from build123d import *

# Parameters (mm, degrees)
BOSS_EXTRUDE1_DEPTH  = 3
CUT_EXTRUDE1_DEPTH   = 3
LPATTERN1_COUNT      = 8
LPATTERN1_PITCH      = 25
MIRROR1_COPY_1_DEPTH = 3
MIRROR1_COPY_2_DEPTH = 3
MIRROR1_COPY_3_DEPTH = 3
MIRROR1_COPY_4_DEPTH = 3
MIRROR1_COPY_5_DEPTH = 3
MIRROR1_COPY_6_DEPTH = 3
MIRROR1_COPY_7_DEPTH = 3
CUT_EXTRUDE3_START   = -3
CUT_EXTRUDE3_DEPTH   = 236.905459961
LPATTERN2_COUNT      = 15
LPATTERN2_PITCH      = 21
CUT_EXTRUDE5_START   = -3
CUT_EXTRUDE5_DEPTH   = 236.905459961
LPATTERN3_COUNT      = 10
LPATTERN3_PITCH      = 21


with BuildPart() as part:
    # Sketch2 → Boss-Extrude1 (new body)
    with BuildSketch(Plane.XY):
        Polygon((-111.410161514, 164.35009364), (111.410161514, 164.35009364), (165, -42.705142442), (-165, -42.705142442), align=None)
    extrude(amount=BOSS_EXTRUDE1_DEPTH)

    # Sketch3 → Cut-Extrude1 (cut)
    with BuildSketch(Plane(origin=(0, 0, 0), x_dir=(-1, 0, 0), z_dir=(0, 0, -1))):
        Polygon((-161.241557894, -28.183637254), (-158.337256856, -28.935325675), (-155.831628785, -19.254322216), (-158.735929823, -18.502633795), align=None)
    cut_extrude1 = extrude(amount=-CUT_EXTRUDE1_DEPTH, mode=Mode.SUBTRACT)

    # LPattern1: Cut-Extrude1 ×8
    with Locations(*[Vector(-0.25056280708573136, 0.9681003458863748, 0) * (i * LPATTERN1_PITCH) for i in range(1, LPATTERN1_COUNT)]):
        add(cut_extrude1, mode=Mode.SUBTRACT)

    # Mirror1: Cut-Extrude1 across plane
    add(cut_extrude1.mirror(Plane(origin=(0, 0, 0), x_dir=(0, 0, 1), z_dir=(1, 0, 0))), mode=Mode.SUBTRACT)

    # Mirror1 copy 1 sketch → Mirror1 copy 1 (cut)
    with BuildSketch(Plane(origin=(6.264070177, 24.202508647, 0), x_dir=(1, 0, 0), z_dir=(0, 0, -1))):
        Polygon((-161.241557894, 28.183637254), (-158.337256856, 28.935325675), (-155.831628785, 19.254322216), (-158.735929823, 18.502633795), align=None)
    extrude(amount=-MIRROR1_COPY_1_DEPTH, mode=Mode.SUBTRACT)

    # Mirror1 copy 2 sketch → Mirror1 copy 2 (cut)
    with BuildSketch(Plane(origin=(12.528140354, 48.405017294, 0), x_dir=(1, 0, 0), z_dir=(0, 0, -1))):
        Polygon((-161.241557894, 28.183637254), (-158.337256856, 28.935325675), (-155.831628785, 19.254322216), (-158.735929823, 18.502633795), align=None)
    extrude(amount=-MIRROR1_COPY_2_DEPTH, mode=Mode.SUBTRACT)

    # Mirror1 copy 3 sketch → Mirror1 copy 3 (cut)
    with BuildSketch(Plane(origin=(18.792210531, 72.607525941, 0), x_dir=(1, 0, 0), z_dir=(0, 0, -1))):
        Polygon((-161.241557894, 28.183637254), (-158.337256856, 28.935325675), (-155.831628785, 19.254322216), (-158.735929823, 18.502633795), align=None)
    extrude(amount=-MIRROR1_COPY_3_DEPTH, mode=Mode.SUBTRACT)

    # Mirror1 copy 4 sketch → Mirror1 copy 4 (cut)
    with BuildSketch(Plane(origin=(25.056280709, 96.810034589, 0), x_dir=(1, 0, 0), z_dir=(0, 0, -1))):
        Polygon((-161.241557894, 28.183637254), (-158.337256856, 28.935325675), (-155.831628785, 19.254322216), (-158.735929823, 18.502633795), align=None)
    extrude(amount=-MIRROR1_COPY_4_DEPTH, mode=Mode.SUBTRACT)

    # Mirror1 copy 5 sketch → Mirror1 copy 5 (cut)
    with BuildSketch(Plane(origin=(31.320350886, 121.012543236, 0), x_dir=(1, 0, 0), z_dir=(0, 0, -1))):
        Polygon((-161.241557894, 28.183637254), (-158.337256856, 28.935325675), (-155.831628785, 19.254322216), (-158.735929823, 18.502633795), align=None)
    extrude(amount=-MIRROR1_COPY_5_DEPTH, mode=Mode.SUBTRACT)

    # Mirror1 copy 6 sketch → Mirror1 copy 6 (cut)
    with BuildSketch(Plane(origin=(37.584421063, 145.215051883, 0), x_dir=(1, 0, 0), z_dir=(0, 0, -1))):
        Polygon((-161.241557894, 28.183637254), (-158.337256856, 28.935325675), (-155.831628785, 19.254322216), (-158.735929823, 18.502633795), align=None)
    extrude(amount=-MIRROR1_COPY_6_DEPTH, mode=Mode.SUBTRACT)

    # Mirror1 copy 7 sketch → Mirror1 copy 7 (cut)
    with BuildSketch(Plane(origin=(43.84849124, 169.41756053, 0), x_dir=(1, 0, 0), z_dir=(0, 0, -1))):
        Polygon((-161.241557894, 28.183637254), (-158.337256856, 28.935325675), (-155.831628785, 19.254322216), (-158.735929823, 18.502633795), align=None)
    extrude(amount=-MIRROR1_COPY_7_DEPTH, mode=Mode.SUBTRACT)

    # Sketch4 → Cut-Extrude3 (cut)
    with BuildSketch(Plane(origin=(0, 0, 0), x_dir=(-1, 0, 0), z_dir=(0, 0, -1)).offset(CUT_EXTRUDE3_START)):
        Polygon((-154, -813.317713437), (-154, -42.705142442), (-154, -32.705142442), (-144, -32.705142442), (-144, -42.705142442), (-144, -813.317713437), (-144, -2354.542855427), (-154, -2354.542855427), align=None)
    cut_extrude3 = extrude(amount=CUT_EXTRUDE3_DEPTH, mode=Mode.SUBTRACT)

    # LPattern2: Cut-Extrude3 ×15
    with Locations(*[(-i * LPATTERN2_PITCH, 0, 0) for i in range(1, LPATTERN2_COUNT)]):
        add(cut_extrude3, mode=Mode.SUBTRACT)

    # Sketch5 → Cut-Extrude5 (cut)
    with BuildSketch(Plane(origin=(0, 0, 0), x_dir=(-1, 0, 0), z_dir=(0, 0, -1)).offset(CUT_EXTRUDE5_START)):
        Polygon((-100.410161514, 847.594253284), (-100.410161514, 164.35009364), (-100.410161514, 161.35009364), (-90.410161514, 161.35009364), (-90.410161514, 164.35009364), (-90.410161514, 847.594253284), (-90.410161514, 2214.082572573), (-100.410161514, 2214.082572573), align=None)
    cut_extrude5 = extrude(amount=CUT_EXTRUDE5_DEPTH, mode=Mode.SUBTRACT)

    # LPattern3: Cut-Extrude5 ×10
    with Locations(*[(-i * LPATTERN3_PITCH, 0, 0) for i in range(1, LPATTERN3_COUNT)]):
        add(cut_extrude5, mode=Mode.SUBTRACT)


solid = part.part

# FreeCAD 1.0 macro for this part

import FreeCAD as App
import Part
import Sketcher
from FreeCAD import Vector
Q = App.Units.Quantity

doc = App.newDocument("Part")
body = doc.addObject("PartDesign::Body", "Body")

# Sketch on XY plane
sketch1 = body.newObject("Sketcher::SketchObject", "Sketch")
sketch1.AttachmentSupport = (doc.getObject("XY_Plane"), [""])
sketch1.MapMode = "FlatFace"
sketch1.addGeometry(Part.LineSegment(Vector(111, 164, 0), Vector(-111, 164, 0)), False)
sketch1.addGeometry(Part.LineSegment(Vector(-111, 164, 0), Vector(-165, -43, 0)), False)
sketch1.addGeometry(Part.LineSegment(Vector(-165, -43, 0), Vector(165, -43, 0)), False)
sketch1.addGeometry(Part.LineSegment(Vector(165, -43, 0), Vector(111, 164, 0)), False)
sketch1.addConstraint(Sketcher.Constraint("Coincident", 0, 2, 1, 1))
sketch1.addConstraint(Sketcher.Constraint("Coincident", 1, 2, 2, 1))
sketch1.addConstraint(Sketcher.Constraint("Coincident", 2, 2, 3, 1))
sketch1.addConstraint(Sketcher.Constraint("Coincident", 3, 2, 0, 1))
sketch1.addConstraint(Sketcher.Constraint("Horizontal", 0))
sketch1.addConstraint(Sketcher.Constraint("Horizontal", 2))
sketch1.addConstraint(Sketcher.Constraint("Equal", 1, 3))
sketch1.addConstraint(Sketcher.Constraint("DistanceX", 2, 1, 2, 2, Q("330 mm")))
sketch1.addConstraint(Sketcher.Constraint("DistanceX", 1, 2, -1, 1, Q("165 mm")))
sketch1.addConstraint(Sketcher.Constraint("DistanceX", 0, 2, 0, 1, Q("222.820323 mm")))
sketch1.addConstraint(Sketcher.Constraint("Distance", 1, Q("213.877866 mm")))
sketch1.addConstraint(Sketcher.Constraint("DistanceY", -1, 1, 0, 2, Q("164.350094 mm")))
pad1 = body.newObject("PartDesign::Pad", "Pad")
pad1.Profile = sketch1
pad1.Length = 3

# Sketch on XY plane
sketch2 = body.newObject("Sketcher::SketchObject", "Sketch001")
sketch2.AttachmentSupport = (doc.getObject("XY_Plane"), [""])
sketch2.MapMode = "FlatFace"
sketch2.addGeometry(Part.LineSegment(Vector(161.2, -28.2, 0), Vector(158.3, -28.9, 0)), False)
sketch2.addGeometry(Part.LineSegment(Vector(158.3, -28.9, 0), Vector(155.8, -19.3, 0)), False)
sketch2.addGeometry(Part.LineSegment(Vector(155.8, -19.3, 0), Vector(158.7, -18.5, 0)), False)
sketch2.addGeometry(Part.LineSegment(Vector(158.7, -18.5, 0), Vector(161.2, -28.2, 0)), False)
sketch2.addConstraint(Sketcher.Constraint("Coincident", 0, 2, 1, 1))
sketch2.addConstraint(Sketcher.Constraint("Coincident", 1, 2, 2, 1))
sketch2.addConstraint(Sketcher.Constraint("Coincident", 2, 2, 3, 1))
sketch2.addConstraint(Sketcher.Constraint("Coincident", 3, 2, 0, 1))
sketch2.addConstraint(Sketcher.Constraint("Perpendicular", 0, 1))
sketch2.addConstraint(Sketcher.Constraint("Perpendicular", 1, 2))
sketch2.addConstraint(Sketcher.Constraint("Perpendicular", 2, 3))
sketch2.addConstraint(Sketcher.Constraint("Distance", 0, Q("3 mm")))
sketch2.addConstraint(Sketcher.Constraint("Distance", 1, Q("10 mm")))
sketch2.addConstraint(Sketcher.Constraint("DistanceX", 1, 2, 2, 2, Q("2.904301 mm")))
sketch2.addConstraint(Sketcher.Constraint("DistanceX", -1, 1, 1, 2, Q("155.831629 mm")))
sketch2.addConstraint(Sketcher.Constraint("DistanceY", 0, 2, -1, 1, Q("28.935326 mm")))
pocket1 = body.newObject("PartDesign::Pocket", "Pocket")
pocket1.Profile = sketch2
pocket1.Length = 3
pocket1.Reversed = True
doc.recompute()

datumline = body.newObject("PartDesign::Line", "DatumLine")
datumline.Placement = App.Placement(Vector(0, 0, 0), App.Rotation(Vector(0, 0, 1), Vector(-0.250562807, 0.968100346, 0)))
linearpattern = body.newObject("PartDesign::LinearPattern", "LinearPattern")
linearpattern.Originals = [pocket1]
linearpattern.Direction = (datumline, [""])
linearpattern.Mode = "offset"
linearpattern.Offset = 25
linearpattern.Occurrences = 8
body.Tip = linearpattern
doc.recompute()

mirrored = body.newObject("PartDesign::Mirrored", "Mirrored")
mirrored.Originals = [pocket1]
mirrored.MirrorPlane = (doc.getObject("YZ_Plane"), [""])
body.Tip = mirrored

# Sketch on XY plane
sketch3 = body.newObject("Sketcher::SketchObject", "Sketch002")
sketch3.AttachmentSupport = (doc.getObject("XY_Plane"), [""])
sketch3.MapMode = "FlatFace"
sketch3.addGeometry(Part.LineSegment(Vector(-152.1, -4.7, 0), Vector(-155, -4, 0)), False)
sketch3.addGeometry(Part.LineSegment(Vector(-155, -4, 0), Vector(-152.5, 5.7, 0)), False)
sketch3.addGeometry(Part.LineSegment(Vector(-152.5, 5.7, 0), Vector(-149.6, 4.9, 0)), False)
sketch3.addGeometry(Part.LineSegment(Vector(-149.6, 4.9, 0), Vector(-152.1, -4.7, 0)), False)
sketch3.addConstraint(Sketcher.Constraint("Coincident", 0, 2, 1, 1))
sketch3.addConstraint(Sketcher.Constraint("Coincident", 1, 2, 2, 1))
sketch3.addConstraint(Sketcher.Constraint("Coincident", 2, 2, 3, 1))
sketch3.addConstraint(Sketcher.Constraint("Coincident", 3, 2, 0, 1))
sketch3.addConstraint(Sketcher.Constraint("Perpendicular", 0, 1))
sketch3.addConstraint(Sketcher.Constraint("Perpendicular", 1, 2))
sketch3.addConstraint(Sketcher.Constraint("Perpendicular", 2, 3))
sketch3.addConstraint(Sketcher.Constraint("Distance", 0, Q("3 mm")))
sketch3.addConstraint(Sketcher.Constraint("Distance", 1, Q("10 mm")))
sketch3.addConstraint(Sketcher.Constraint("DistanceX", 1, 2, 2, 2, Q("2.904301 mm")))
sketch3.addConstraint(Sketcher.Constraint("DistanceY", 0, 2, -1, 1, Q("3.981129 mm")))
sketch3.addConstraint(Sketcher.Constraint("DistanceX", 1, 2, -1, 1, Q("152.47186 mm")))
pocket2 = body.newObject("PartDesign::Pocket", "Pocket001")
pocket2.Profile = sketch3
pocket2.Length = 3
pocket2.Reversed = True

# Sketch on XY plane
sketch4 = body.newObject("Sketcher::SketchObject", "Sketch003")
sketch4.AttachmentSupport = (doc.getObject("XY_Plane"), [""])
sketch4.MapMode = "FlatFace"
sketch4.addGeometry(Part.LineSegment(Vector(-145.8, 19.5, 0), Vector(-148.7, 20.2, 0)), False)
sketch4.addGeometry(Part.LineSegment(Vector(-148.7, 20.2, 0), Vector(-146.2, 29.9, 0)), False)
sketch4.addGeometry(Part.LineSegment(Vector(-146.2, 29.9, 0), Vector(-143.3, 29.2, 0)), False)
sketch4.addGeometry(Part.LineSegment(Vector(-143.3, 29.2, 0), Vector(-145.8, 19.5, 0)), False)
sketch4.addConstraint(Sketcher.Constraint("Coincident", 0, 2, 1, 1))
sketch4.addConstraint(Sketcher.Constraint("Coincident", 1, 2, 2, 1))
sketch4.addConstraint(Sketcher.Constraint("Coincident", 2, 2, 3, 1))
sketch4.addConstraint(Sketcher.Constraint("Coincident", 3, 2, 0, 1))
sketch4.addConstraint(Sketcher.Constraint("Perpendicular", 0, 1))
sketch4.addConstraint(Sketcher.Constraint("Perpendicular", 1, 2))
sketch4.addConstraint(Sketcher.Constraint("Perpendicular", 2, 3))
sketch4.addConstraint(Sketcher.Constraint("Distance", 0, Q("3 mm")))
sketch4.addConstraint(Sketcher.Constraint("Distance", 1, Q("10 mm")))
sketch4.addConstraint(Sketcher.Constraint("DistanceX", 1, 2, 2, 2, Q("2.904301 mm")))
sketch4.addConstraint(Sketcher.Constraint("DistanceY", -1, 1, 0, 2, Q("20.22138 mm")))
sketch4.addConstraint(Sketcher.Constraint("DistanceX", 1, 2, -1, 1, Q("146.207789 mm")))
pocket3 = body.newObject("PartDesign::Pocket", "Pocket002")
pocket3.Profile = sketch4
pocket3.Length = 3
pocket3.Reversed = True

# Sketch on XY plane
sketch5 = body.newObject("Sketcher::SketchObject", "Sketch004")
sketch5.AttachmentSupport = (doc.getObject("XY_Plane"), [""])
sketch5.MapMode = "FlatFace"
sketch5.addGeometry(Part.LineSegment(Vector(-139.5, 43.7, 0), Vector(-142.4, 44.4, 0)), False)
sketch5.addGeometry(Part.LineSegment(Vector(-142.4, 44.4, 0), Vector(-139.9, 54.1, 0)), False)
sketch5.addGeometry(Part.LineSegment(Vector(-139.9, 54.1, 0), Vector(-137, 53.4, 0)), False)
sketch5.addGeometry(Part.LineSegment(Vector(-137, 53.4, 0), Vector(-139.5, 43.7, 0)), False)
sketch5.addConstraint(Sketcher.Constraint("Coincident", 0, 2, 1, 1))
sketch5.addConstraint(Sketcher.Constraint("Coincident", 1, 2, 2, 1))
sketch5.addConstraint(Sketcher.Constraint("Coincident", 2, 2, 3, 1))
sketch5.addConstraint(Sketcher.Constraint("Coincident", 3, 2, 0, 1))
sketch5.addConstraint(Sketcher.Constraint("Perpendicular", 0, 1))
sketch5.addConstraint(Sketcher.Constraint("Perpendicular", 1, 2))
sketch5.addConstraint(Sketcher.Constraint("Perpendicular", 2, 3))
sketch5.addConstraint(Sketcher.Constraint("Distance", 0, Q("3 mm")))
sketch5.addConstraint(Sketcher.Constraint("Distance", 1, Q("10 mm")))
sketch5.addConstraint(Sketcher.Constraint("DistanceY", -1, 1, 3, 2, Q("43.6722 mm")))
sketch5.addConstraint(Sketcher.Constraint("DistanceX", 1, 2, 2, 2, Q("2.904301 mm")))
sketch5.addConstraint(Sketcher.Constraint("DistanceX", 1, 2, -1, 1, Q("139.943719 mm")))
pocket4 = body.newObject("PartDesign::Pocket", "Pocket003")
pocket4.Profile = sketch5
pocket4.Length = 3
pocket4.Reversed = True

# Sketch on XY plane
sketch6 = body.newObject("Sketcher::SketchObject", "Sketch005")
sketch6.AttachmentSupport = (doc.getObject("XY_Plane"), [""])
sketch6.MapMode = "FlatFace"
sketch6.addGeometry(Part.LineSegment(Vector(-133.3, 67.9, 0), Vector(-136.2, 68.6, 0)), False)
sketch6.addGeometry(Part.LineSegment(Vector(-136.2, 68.6, 0), Vector(-133.7, 78.3, 0)), False)
sketch6.addGeometry(Part.LineSegment(Vector(-133.7, 78.3, 0), Vector(-130.8, 77.6, 0)), False)
sketch6.addGeometry(Part.LineSegment(Vector(-130.8, 77.6, 0), Vector(-133.3, 67.9, 0)), False)
sketch6.addConstraint(Sketcher.Constraint("Coincident", 0, 2, 1, 1))
sketch6.addConstraint(Sketcher.Constraint("Coincident", 1, 2, 2, 1))
sketch6.addConstraint(Sketcher.Constraint("Coincident", 2, 2, 3, 1))
sketch6.addConstraint(Sketcher.Constraint("Coincident", 3, 2, 0, 1))
sketch6.addConstraint(Sketcher.Constraint("Perpendicular", 0, 1))
sketch6.addConstraint(Sketcher.Constraint("Perpendicular", 1, 2))
sketch6.addConstraint(Sketcher.Constraint("Perpendicular", 2, 3))
sketch6.addConstraint(Sketcher.Constraint("Distance", 0, Q("3 mm")))
sketch6.addConstraint(Sketcher.Constraint("Distance", 1, Q("10 mm")))
sketch6.addConstraint(Sketcher.Constraint("DistanceY", -1, 1, 1, 2, Q("78.307401 mm")))
sketch6.addConstraint(Sketcher.Constraint("DistanceX", 1, 2, 2, 2, Q("2.904301 mm")))
sketch6.addConstraint(Sketcher.Constraint("DistanceX", 1, 2, -1, 1, Q("133.679649 mm")))
pocket5 = body.newObject("PartDesign::Pocket", "Pocket004")
pocket5.Profile = sketch6
pocket5.Length = 3
pocket5.Reversed = True

# Sketch on XY plane
sketch7 = body.newObject("Sketcher::SketchObject", "Sketch006")
sketch7.AttachmentSupport = (doc.getObject("XY_Plane"), [""])
sketch7.MapMode = "FlatFace"
sketch7.addGeometry(Part.LineSegment(Vector(-127, 92.1, 0), Vector(-129.9, 92.8, 0)), False)
sketch7.addGeometry(Part.LineSegment(Vector(-129.9, 92.8, 0), Vector(-127.4, 102.5, 0)), False)
sketch7.addGeometry(Part.LineSegment(Vector(-127.4, 102.5, 0), Vector(-124.5, 101.8, 0)), False)
sketch7.addGeometry(Part.LineSegment(Vector(-124.5, 101.8, 0), Vector(-127, 92.1, 0)), False)
sketch7.addConstraint(Sketcher.Constraint("Coincident", 0, 2, 1, 1))
sketch7.addConstraint(Sketcher.Constraint("Coincident", 1, 2, 2, 1))
sketch7.addConstraint(Sketcher.Constraint("Coincident", 2, 2, 3, 1))
sketch7.addConstraint(Sketcher.Constraint("Coincident", 3, 2, 0, 1))
sketch7.addConstraint(Sketcher.Constraint("Perpendicular", 0, 1))
sketch7.addConstraint(Sketcher.Constraint("Perpendicular", 1, 2))
sketch7.addConstraint(Sketcher.Constraint("Perpendicular", 2, 3))
sketch7.addConstraint(Sketcher.Constraint("Distance", 0, Q("3 mm")))
sketch7.addConstraint(Sketcher.Constraint("Distance", 1, Q("10 mm")))
sketch7.addConstraint(Sketcher.Constraint("DistanceX", 1, 2, 2, 2, Q("2.904301 mm")))
sketch7.addConstraint(Sketcher.Constraint("DistanceX", 1, 2, -1, 1, Q("127.415579 mm")))
sketch7.addConstraint(Sketcher.Constraint("DistanceY", -1, 1, 1, 2, Q("102.509909 mm")))
pocket6 = body.newObject("PartDesign::Pocket", "Pocket005")
pocket6.Profile = sketch7
pocket6.Length = 3
pocket6.Reversed = True

# Sketch on XY plane
sketch8 = body.newObject("Sketcher::SketchObject", "Sketch007")
sketch8.AttachmentSupport = (doc.getObject("XY_Plane"), [""])
sketch8.MapMode = "FlatFace"
sketch8.addGeometry(Part.LineSegment(Vector(-120.8, 116.3, 0), Vector(-123.7, 117, 0)), False)
sketch8.addGeometry(Part.LineSegment(Vector(-123.7, 117, 0), Vector(-121.2, 126.7, 0)), False)
sketch8.addGeometry(Part.LineSegment(Vector(-121.2, 126.7, 0), Vector(-118.2, 126, 0)), False)
sketch8.addGeometry(Part.LineSegment(Vector(-118.2, 126, 0), Vector(-120.8, 116.3, 0)), False)
sketch8.addConstraint(Sketcher.Constraint("Coincident", 0, 2, 1, 1))
sketch8.addConstraint(Sketcher.Constraint("Coincident", 1, 2, 2, 1))
sketch8.addConstraint(Sketcher.Constraint("Coincident", 2, 2, 3, 1))
sketch8.addConstraint(Sketcher.Constraint("Coincident", 3, 2, 0, 1))
sketch8.addConstraint(Sketcher.Constraint("Perpendicular", 0, 1))
sketch8.addConstraint(Sketcher.Constraint("Perpendicular", 1, 2))
sketch8.addConstraint(Sketcher.Constraint("Perpendicular", 2, 3))
sketch8.addConstraint(Sketcher.Constraint("Distance", 0, Q("3 mm")))
sketch8.addConstraint(Sketcher.Constraint("Distance", 1, Q("10 mm")))
sketch8.addConstraint(Sketcher.Constraint("DistanceX", 1, 2, 2, 2, Q("2.904301 mm")))
sketch8.addConstraint(Sketcher.Constraint("DistanceX", 1, 2, -1, 1, Q("121.151509 mm")))
sketch8.addConstraint(Sketcher.Constraint("DistanceY", -1, 1, 1, 2, Q("126.712418 mm")))
pocket7 = body.newObject("PartDesign::Pocket", "Pocket006")
pocket7.Profile = sketch8
pocket7.Length = 3
pocket7.Reversed = True

# Sketch on XY plane
sketch9 = body.newObject("Sketcher::SketchObject", "Sketch008")
sketch9.AttachmentSupport = (doc.getObject("XY_Plane"), [""])
sketch9.MapMode = "FlatFace"
sketch9.addGeometry(Part.LineSegment(Vector(-114.5, 140.5, 0), Vector(-117.4, 141.2, 0)), False)
sketch9.addGeometry(Part.LineSegment(Vector(-117.4, 141.2, 0), Vector(-114.9, 150.9, 0)), False)
sketch9.addGeometry(Part.LineSegment(Vector(-114.9, 150.9, 0), Vector(-112, 150.2, 0)), False)
sketch9.addGeometry(Part.LineSegment(Vector(-112, 150.2, 0), Vector(-114.5, 140.5, 0)), False)
sketch9.addConstraint(Sketcher.Constraint("Coincident", 0, 2, 1, 1))
sketch9.addConstraint(Sketcher.Constraint("Coincident", 1, 2, 2, 1))
sketch9.addConstraint(Sketcher.Constraint("Coincident", 2, 2, 3, 1))
sketch9.addConstraint(Sketcher.Constraint("Coincident", 3, 2, 0, 1))
sketch9.addConstraint(Sketcher.Constraint("Perpendicular", 0, 1))
sketch9.addConstraint(Sketcher.Constraint("Perpendicular", 1, 2))
sketch9.addConstraint(Sketcher.Constraint("Perpendicular", 2, 3))
sketch9.addConstraint(Sketcher.Constraint("Distance", 0, Q("3 mm")))
sketch9.addConstraint(Sketcher.Constraint("Distance", 1, Q("10 mm")))
sketch9.addConstraint(Sketcher.Constraint("DistanceX", 1, 2, 2, 2, Q("2.904301 mm")))
sketch9.addConstraint(Sketcher.Constraint("DistanceX", 1, 2, -1, 1, Q("114.887439 mm")))
sketch9.addConstraint(Sketcher.Constraint("DistanceY", -1, 1, 2, 2, Q("150.163238 mm")))
pocket8 = body.newObject("PartDesign::Pocket", "Pocket007")
pocket8.Profile = sketch9
pocket8.Length = 3
pocket8.Reversed = True

# Sketch on XY plane
sketch10 = body.newObject("Sketcher::SketchObject", "Sketch009")
sketch10.AttachmentSupport = (doc.getObject("XY_Plane"), [""])
sketch10.MapMode = "FlatFace"
sketch10.AttachmentOffset = App.Placement(Vector(0, 0, 3), App.Rotation())
sketch10.addGeometry(Part.LineSegment(Vector(154, -33, 0), Vector(154, -2355, 0)), False)
sketch10.addGeometry(Part.LineSegment(Vector(154, -2355, 0), Vector(144, -2355, 0)), False)
sketch10.addGeometry(Part.LineSegment(Vector(144, -2355, 0), Vector(144, -33, 0)), False)
sketch10.addGeometry(Part.LineSegment(Vector(144, -33, 0), Vector(154, -33, 0)), False)
sketch10.addConstraint(Sketcher.Constraint("Coincident", 0, 2, 1, 1))
sketch10.addConstraint(Sketcher.Constraint("Coincident", 1, 2, 2, 1))
sketch10.addConstraint(Sketcher.Constraint("Coincident", 2, 2, 3, 1))
sketch10.addConstraint(Sketcher.Constraint("Coincident", 3, 2, 0, 1))
sketch10.addConstraint(Sketcher.Constraint("Vertical", 0))
sketch10.addConstraint(Sketcher.Constraint("Horizontal", 1))
sketch10.addConstraint(Sketcher.Constraint("Vertical", 2))
sketch10.addConstraint(Sketcher.Constraint("Horizontal", 3))
sketch10.addConstraint(Sketcher.Constraint("DistanceX", 1, 2, 1, 1, Q("10 mm")))
sketch10.addConstraint(Sketcher.Constraint("DistanceX", -1, 1, 0, 2, Q("154 mm")))
sketch10.addConstraint(Sketcher.Constraint("DistanceY", 0, 2, 0, 1, Q("2321.837713 mm")))
sketch10.addConstraint(Sketcher.Constraint("DistanceY", 0, 2, -1, 1, Q("2354.542855 mm")))
pocket9 = body.newObject("PartDesign::Pocket", "Pocket008")
pocket9.Profile = sketch10
pocket9.Length = 236.90546
doc.recompute()

linearpattern2 = body.newObject("PartDesign::LinearPattern", "LinearPattern001")
linearpattern2.Originals = [pocket9]
linearpattern2.Direction = (doc.getObject("X_Axis"), [""])
linearpattern2.Mode = "offset"
linearpattern2.Offset = 21
linearpattern2.Occurrences = 15
linearpattern2.Reversed = True
body.Tip = linearpattern2

# Sketch on XY plane
sketch11 = body.newObject("Sketcher::SketchObject", "Sketch010")
sketch11.AttachmentSupport = (doc.getObject("XY_Plane"), [""])
sketch11.MapMode = "FlatFace"
sketch11.AttachmentOffset = App.Placement(Vector(0, 0, 3), App.Rotation())
sketch11.addGeometry(Part.LineSegment(Vector(100, 161, 0), Vector(90, 161, 0)), False)
sketch11.addGeometry(Part.LineSegment(Vector(90, 161, 0), Vector(90, 2214, 0)), False)
sketch11.addGeometry(Part.LineSegment(Vector(90, 2214, 0), Vector(100, 2214, 0)), False)
sketch11.addGeometry(Part.LineSegment(Vector(100, 2214, 0), Vector(100, 161, 0)), False)
sketch11.addConstraint(Sketcher.Constraint("Coincident", 0, 2, 1, 1))
sketch11.addConstraint(Sketcher.Constraint("Coincident", 1, 2, 2, 1))
sketch11.addConstraint(Sketcher.Constraint("Coincident", 2, 2, 3, 1))
sketch11.addConstraint(Sketcher.Constraint("Coincident", 3, 2, 0, 1))
sketch11.addConstraint(Sketcher.Constraint("Horizontal", 0))
sketch11.addConstraint(Sketcher.Constraint("Vertical", 1))
sketch11.addConstraint(Sketcher.Constraint("Horizontal", 2))
sketch11.addConstraint(Sketcher.Constraint("Vertical", 3))
sketch11.addConstraint(Sketcher.Constraint("DistanceX", 0, 2, 0, 1, Q("10 mm")))
sketch11.addConstraint(Sketcher.Constraint("DistanceY", 1, 1, 1, 2, Q("2052.732479 mm")))
sketch11.addConstraint(Sketcher.Constraint("DistanceX", -1, 1, 0, 2, Q("90.410162 mm")))
sketch11.addConstraint(Sketcher.Constraint("DistanceY", -1, 1, 0, 2, Q("161.350094 mm")))
pocket10 = body.newObject("PartDesign::Pocket", "Pocket009")
pocket10.Profile = sketch11
pocket10.Length = 236.90546
doc.recompute()

linearpattern3 = body.newObject("PartDesign::LinearPattern", "LinearPattern002")
linearpattern3.Originals = [pocket10]
linearpattern3.Direction = (doc.getObject("X_Axis"), [""])
linearpattern3.Mode = "offset"
linearpattern3.Offset = 21
linearpattern3.Occurrences = 10
linearpattern3.Reversed = True
body.Tip = linearpattern3

doc.recompute()
